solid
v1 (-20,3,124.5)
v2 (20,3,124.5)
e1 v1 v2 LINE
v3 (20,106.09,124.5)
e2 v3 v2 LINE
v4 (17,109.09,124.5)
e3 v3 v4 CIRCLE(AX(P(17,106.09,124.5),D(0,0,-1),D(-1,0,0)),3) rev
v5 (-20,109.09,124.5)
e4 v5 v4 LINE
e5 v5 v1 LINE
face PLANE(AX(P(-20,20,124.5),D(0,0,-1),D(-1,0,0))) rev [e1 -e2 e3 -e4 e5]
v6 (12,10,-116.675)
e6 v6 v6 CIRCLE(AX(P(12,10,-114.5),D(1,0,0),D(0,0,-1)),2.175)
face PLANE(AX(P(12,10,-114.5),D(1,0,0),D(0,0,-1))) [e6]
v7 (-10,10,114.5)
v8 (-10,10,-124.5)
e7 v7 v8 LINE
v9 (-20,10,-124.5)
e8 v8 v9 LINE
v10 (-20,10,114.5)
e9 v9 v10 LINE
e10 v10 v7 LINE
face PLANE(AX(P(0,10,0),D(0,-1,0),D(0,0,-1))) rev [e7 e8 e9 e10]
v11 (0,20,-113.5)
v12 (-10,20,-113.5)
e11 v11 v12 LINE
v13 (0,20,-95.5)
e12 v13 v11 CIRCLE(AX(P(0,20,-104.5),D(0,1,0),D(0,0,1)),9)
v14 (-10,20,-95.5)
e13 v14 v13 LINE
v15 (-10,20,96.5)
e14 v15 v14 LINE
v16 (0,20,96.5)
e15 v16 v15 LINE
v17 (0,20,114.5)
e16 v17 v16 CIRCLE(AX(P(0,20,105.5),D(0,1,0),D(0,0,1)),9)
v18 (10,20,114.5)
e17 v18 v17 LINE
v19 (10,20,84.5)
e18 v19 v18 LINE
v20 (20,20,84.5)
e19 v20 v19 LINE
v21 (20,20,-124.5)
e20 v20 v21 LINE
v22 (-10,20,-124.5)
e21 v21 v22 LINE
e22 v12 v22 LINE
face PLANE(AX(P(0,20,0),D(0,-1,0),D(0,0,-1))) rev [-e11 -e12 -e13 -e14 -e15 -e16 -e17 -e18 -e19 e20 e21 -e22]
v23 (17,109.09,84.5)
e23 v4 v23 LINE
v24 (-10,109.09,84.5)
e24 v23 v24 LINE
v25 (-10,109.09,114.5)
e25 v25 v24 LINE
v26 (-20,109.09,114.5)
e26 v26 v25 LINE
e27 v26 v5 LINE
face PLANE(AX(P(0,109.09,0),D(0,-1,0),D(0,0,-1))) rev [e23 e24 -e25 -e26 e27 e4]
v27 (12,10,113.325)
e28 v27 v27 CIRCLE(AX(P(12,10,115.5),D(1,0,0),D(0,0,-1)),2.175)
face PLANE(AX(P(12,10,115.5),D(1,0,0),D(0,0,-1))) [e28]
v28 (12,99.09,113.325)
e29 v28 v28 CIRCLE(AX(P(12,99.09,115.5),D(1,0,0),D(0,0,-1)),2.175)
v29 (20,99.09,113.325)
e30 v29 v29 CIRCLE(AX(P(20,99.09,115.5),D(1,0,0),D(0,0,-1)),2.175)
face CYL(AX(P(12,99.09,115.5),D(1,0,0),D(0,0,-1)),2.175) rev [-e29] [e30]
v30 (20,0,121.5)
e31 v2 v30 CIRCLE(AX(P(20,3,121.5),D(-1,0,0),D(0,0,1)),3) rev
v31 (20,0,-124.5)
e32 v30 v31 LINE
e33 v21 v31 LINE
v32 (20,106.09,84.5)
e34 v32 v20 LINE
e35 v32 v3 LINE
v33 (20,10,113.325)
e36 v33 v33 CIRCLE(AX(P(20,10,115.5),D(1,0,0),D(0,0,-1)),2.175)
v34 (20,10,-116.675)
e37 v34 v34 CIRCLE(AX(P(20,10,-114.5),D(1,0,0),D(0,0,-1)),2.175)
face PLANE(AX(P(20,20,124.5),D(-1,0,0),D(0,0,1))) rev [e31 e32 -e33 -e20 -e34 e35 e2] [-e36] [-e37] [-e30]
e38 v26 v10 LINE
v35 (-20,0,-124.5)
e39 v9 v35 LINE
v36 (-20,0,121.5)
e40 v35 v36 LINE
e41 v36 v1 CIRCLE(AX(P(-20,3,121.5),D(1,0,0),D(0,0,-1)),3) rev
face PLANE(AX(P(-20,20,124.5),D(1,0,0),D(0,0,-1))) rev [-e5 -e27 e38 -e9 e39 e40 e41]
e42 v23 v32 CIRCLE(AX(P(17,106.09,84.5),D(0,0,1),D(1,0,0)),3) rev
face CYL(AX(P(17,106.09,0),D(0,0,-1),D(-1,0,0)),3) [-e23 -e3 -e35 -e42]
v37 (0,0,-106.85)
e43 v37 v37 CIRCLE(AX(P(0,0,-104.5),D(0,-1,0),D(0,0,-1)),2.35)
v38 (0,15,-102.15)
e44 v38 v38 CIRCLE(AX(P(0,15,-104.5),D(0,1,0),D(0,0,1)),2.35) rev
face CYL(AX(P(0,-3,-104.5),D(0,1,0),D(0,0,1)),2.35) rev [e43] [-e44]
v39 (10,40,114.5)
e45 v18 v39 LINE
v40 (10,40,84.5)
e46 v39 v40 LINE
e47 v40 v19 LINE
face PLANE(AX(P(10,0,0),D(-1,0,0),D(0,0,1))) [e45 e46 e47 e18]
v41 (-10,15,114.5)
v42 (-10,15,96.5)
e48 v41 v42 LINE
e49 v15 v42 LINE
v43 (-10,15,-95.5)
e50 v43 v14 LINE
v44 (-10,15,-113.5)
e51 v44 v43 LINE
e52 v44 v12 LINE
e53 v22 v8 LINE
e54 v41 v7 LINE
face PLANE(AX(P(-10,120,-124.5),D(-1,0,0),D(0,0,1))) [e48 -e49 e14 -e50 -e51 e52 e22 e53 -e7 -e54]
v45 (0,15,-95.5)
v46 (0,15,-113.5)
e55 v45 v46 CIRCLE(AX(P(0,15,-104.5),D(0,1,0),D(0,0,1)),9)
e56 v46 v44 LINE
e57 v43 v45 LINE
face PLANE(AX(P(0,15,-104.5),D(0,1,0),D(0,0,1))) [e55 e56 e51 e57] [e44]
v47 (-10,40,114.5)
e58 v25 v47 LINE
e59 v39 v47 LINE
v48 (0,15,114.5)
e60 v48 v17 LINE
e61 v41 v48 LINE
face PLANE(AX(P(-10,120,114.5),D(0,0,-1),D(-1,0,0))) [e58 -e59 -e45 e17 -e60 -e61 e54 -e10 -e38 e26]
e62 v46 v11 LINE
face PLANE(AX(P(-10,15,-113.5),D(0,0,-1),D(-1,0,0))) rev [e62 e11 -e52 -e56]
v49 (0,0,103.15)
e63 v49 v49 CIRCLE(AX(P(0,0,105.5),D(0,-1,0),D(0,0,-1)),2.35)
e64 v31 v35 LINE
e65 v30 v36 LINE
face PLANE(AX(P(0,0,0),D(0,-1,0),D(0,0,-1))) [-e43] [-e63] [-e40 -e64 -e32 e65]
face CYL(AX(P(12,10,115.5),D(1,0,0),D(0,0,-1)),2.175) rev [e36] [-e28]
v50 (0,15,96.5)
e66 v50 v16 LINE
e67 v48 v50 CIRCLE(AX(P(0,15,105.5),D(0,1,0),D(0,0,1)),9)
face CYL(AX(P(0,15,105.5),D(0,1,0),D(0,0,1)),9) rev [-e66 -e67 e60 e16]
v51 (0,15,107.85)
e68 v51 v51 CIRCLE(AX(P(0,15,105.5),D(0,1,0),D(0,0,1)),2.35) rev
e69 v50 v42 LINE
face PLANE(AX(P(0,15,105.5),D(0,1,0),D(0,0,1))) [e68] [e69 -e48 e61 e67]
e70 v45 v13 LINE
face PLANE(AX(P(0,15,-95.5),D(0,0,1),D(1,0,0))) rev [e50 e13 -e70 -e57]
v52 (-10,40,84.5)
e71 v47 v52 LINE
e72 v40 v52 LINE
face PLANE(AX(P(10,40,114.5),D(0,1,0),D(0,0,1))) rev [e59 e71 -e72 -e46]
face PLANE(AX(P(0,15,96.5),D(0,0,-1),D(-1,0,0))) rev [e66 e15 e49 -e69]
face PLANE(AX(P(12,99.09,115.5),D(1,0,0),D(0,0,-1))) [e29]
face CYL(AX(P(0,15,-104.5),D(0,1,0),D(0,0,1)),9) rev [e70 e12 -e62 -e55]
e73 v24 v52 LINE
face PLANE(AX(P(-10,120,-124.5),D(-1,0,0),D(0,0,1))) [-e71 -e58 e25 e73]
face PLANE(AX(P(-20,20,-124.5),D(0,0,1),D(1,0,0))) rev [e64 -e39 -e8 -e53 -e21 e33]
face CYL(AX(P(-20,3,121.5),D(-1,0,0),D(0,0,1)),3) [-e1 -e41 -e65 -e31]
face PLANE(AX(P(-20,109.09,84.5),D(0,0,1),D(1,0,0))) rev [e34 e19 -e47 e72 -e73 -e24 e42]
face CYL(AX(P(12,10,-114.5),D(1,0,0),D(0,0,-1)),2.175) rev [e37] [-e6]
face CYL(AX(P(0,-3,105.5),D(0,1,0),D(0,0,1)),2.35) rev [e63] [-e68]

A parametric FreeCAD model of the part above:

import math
import FreeCAD as App
import Part
import Sketcher
Q = App.Units.Quantity


def edges_at(feature, points):
    """Names of the edges that pass closest to the given points."""
    edges = feature.Shape.Edges
    near = lambda p: min(range(len(edges)), key=lambda i: edges[i].distToShape(Part.Vertex(*p))[0])
    return sorted({f"Edge{near(p) + 1}" for p in points})


def add_polygon(sketch, points):
    """Adds a closed chain of lines whose ends are joined by coincident constraints."""
    first, n = sketch.GeometryCount, len(points)
    for a, b in zip(points, points[1:] + points[:1]):
        sketch.addGeometry(Part.LineSegment(App.Vector(*a, 0), App.Vector(*b, 0)), False)
    for i in range(n):
        sketch.addConstraint(Sketcher.Constraint("Coincident", first + i, 2, first + (i + 1) % n, 1))

doc = App.newDocument("Part")
body = doc.addObject("PartDesign::Body", "Body")

# Sketch on XZ plane
sketch1 = doc.addObject("Sketcher::SketchObject", "Sketch")
body.addObject(sketch1)
sketch1.AttachmentSupport = (doc.XZ_Plane, [""])
sketch1.MapMode = "FlatFace"
add_polygon(sketch1, [(-20, -124), (-20, 124), (20, 124), (20, -124)])  # lines 0-3
sketch1.addConstraint([
    Sketcher.Constraint("Vertical", 0),
    Sketcher.Constraint("Horizontal", 1),
    Sketcher.Constraint("Vertical", 2),
    Sketcher.Constraint("Horizontal", 3),
    Sketcher.Constraint("Symmetric", 0, 2, 2, 2, -1, 1),
    Sketcher.Constraint("DistanceX", 1, 1, 1, 2, Q("40 mm")),
    Sketcher.Constraint("DistanceY", 0, 1, 0, 2, Q("249 mm")),
])
pad1 = doc.addObject("PartDesign::Pad", "Pad")
body.addObject(pad1)
pad1.Profile = sketch1
pad1.Length = 20
pad1.Reversed = True

# Sketch on XZ plane
sketch2 = doc.addObject("Sketcher::SketchObject", "Sketch001")
body.addObject(sketch2)
sketch2.AttachmentSupport = (doc.XZ_Plane, [""])
sketch2.MapMode = "FlatFace"
sketch2.AttachmentOffset = App.Placement(App.Vector(0, 0, -20), App.Rotation())
add_polygon(sketch2, [(-20, 84), (-20, 124), (20, 124), (20, 84)])  # lines 0-3
sketch2.addConstraint([
    Sketcher.Constraint("Vertical", 0),
    Sketcher.Constraint("Horizontal", 1),
    Sketcher.Constraint("Vertical", 2),
    Sketcher.Constraint("Horizontal", 3),
    Sketcher.Constraint("Equal", 3, 0),
    Sketcher.Constraint("DistanceX", 1, 1, 1, 2, Q("40 mm")),
    Sketcher.Constraint("DistanceX", 0, 2, -1, 1, Q("20 mm")),
    Sketcher.Constraint("DistanceY", -1, 1, 0, 2, Q("124.5 mm")),
])
pad2 = doc.addObject("PartDesign::Pad", "Pad001")
body.addObject(pad2)
pad2.Profile = sketch2
pad2.Length = 89.09
pad2.Reversed = True

# Sketch on XZ plane
sketch3 = doc.addObject("Sketcher::SketchObject", "Sketch002")
body.addObject(sketch3)
sketch3.AttachmentSupport = (doc.XZ_Plane, [""])
sketch3.MapMode = "FlatFace"
sketch3.AttachmentOffset = App.Placement(App.Vector(0, 0, -20), App.Rotation())
add_polygon(sketch3, [(-20, -124), (-20, 114), (-10, 114), (-10, -124)])  # lines 0-3
sketch3.addConstraint([
    Sketcher.Constraint("Vertical", 0),
    Sketcher.Constraint("Horizontal", 1),
    Sketcher.Constraint("Vertical", 2),
    Sketcher.Constraint("Horizontal", 3),
    Sketcher.Constraint("DistanceX", 1, 1, 1, 2, Q("10 mm")),
    Sketcher.Constraint("DistanceY", 0, 1, 0, 2, Q("239 mm")),
    Sketcher.Constraint("DistanceX", 0, 2, -1, 1, Q("20 mm")),
    Sketcher.Constraint("DistanceY", -1, 1, 0, 2, Q("114.5 mm")),
])
pocket1 = doc.addObject("PartDesign::Pocket", "Pocket")
body.addObject(pocket1)
pocket1.Profile = sketch3
pocket1.Type = "TwoLengths"
pocket1.Length = 100
pocket1.Length2 = 10

# Sketch on YZ plane
sketch4 = doc.addObject("Sketcher::SketchObject", "Sketch003")
body.addObject(sketch4)
sketch4.AttachmentSupport = (doc.YZ_Plane, [""])
sketch4.MapMode = "FlatFace"
sketch4.AttachmentOffset = App.Placement(App.Vector(0, 0, -10), App.Rotation())
add_polygon(sketch4, [(40, 84), (20, 84), (20, 114), (40, 114)])  # lines 0-3
sketch4.addConstraint([
    Sketcher.Constraint("Horizontal", 0),
    Sketcher.Constraint("Vertical", 1),
    Sketcher.Constraint("Horizontal", 2),
    Sketcher.Constraint("Vertical", 3),
    Sketcher.Constraint("DistanceX", 0, 2, 0, 1, Q("20 mm")),
    Sketcher.Constraint("DistanceY", 1, 1, 1, 2, Q("30 mm")),
    Sketcher.Constraint("DistanceX", -1, 1, 0, 2, Q("20 mm")),
    Sketcher.Constraint("DistanceY", -1, 1, 0, 2, Q("84.5 mm")),
])
pocket2 = doc.addObject("PartDesign::Pocket", "Pocket001")
body.addObject(pocket2)
pocket2.Profile = sketch4
pocket2.Length = 20
pocket2.Reversed = True

# Sketch on XZ plane
sketch5 = doc.addObject("Sketcher::SketchObject", "Sketch004")
body.addObject(sketch5)
sketch5.AttachmentSupport = (doc.XZ_Plane, [""])
sketch5.MapMode = "FlatFace"
sketch5.AttachmentOffset = App.Placement(App.Vector(0, 0, -20), App.Rotation())
sketch5.addGeometry([
    Part.Circle(App.Vector(0, -104.5, 0), App.Vector(0, 0, 1), 2.4),
    Part.Circle(App.Vector(0, 105.5, 0), App.Vector(0, 0, 1), 2.4),
], False)
sketch5.addConstraint([
    Sketcher.Constraint("Equal", 0, 1),
    Sketcher.Constraint("PointOnObject", 0, 3, -2),
    Sketcher.Constraint("PointOnObject", 1, 3, -2),
    Sketcher.Constraint("Diameter", 0, Q("4.7 mm")),
    Sketcher.Constraint("DistanceY", 0, 3, 1, 3, Q("210 mm")),
    Sketcher.Constraint("DistanceY", 0, 3, -1, 1, Q("104.5 mm")),
])
pocket3 = doc.addObject("PartDesign::Pocket", "Pocket002")
body.addObject(pocket3)
pocket3.Profile = sketch5
pocket3.Length = 23
pocket3.Reversed = True

# Sketch on XZ plane
sketch6 = doc.addObject("Sketcher::SketchObject", "Sketch005")
body.addObject(sketch6)
sketch6.AttachmentSupport = (doc.XZ_Plane, [""])
sketch6.MapMode = "FlatFace"
sketch6.AttachmentOffset = App.Placement(App.Vector(0, 0, -20), App.Rotation())
sketch6.addGeometry([
    Part.LineSegment(App.Vector(-10, -96, 0), App.Vector(0, -96, 0)),  # 0
    Part.ArcOfCircle(Part.Circle(App.Vector(0, -104, 0), App.Vector(0, 0, 1), 9), math.radians(-90), math.radians(90)),  # 1
    Part.LineSegment(App.Vector(0, -114, 0), App.Vector(-10, -114, 0)),  # 2
    Part.LineSegment(App.Vector(-10, -114, 0), App.Vector(-10, -96, 0)),  # 3
    Part.LineSegment(App.Vector(0, 96, 0), App.Vector(-20, 96, 0)),  # 4
    Part.LineSegment(App.Vector(-20, 96, 0), App.Vector(-20, 114, 0)),  # 5
    Part.LineSegment(App.Vector(-20, 114, 0), App.Vector(0, 114, 0)),  # 6
    Part.ArcOfCircle(Part.Circle(App.Vector(0, 106, 0), App.Vector(0, 0, 1), 9), math.radians(-90), math.radians(90)),  # 7
], False)
sketch6.addConstraint([
    Sketcher.Constraint("Tangent", 0, 2, 1, 2),
    Sketcher.Constraint("Tangent", 1, 1, 2, 1),
    Sketcher.Constraint("Coincident", 2, 2, 3, 1),
    Sketcher.Constraint("Coincident", 3, 2, 0, 1),
    Sketcher.Constraint("Coincident", 4, 2, 5, 1),
    Sketcher.Constraint("Coincident", 5, 2, 6, 1),
    Sketcher.Constraint("Tangent", 6, 2, 7, 2),
    Sketcher.Constraint("Tangent", 7, 1, 4, 1),
    Sketcher.Constraint("Horizontal", 0),
    Sketcher.Constraint("Horizontal", 2),
    Sketcher.Constraint("Vertical", 3),
    Sketcher.Constraint("Horizontal", 4),
    Sketcher.Constraint("Vertical", 5),
    Sketcher.Constraint("Horizontal", 6),
    Sketcher.Constraint("Equal", 1, 7),
    Sketcher.Constraint("PointOnObject", 1, 3, -2),
    Sketcher.Constraint("PointOnObject", 7, 3, -2),
    Sketcher.Constraint("Radius", 1, Q("9 mm")),
    Sketcher.Constraint("DistanceX", 0, 1, 0, 2, Q("10 mm")),
    Sketcher.Constraint("DistanceX", 4, 2, 4, 1, Q("20 mm")),
    Sketcher.Constraint("DistanceY", 1, 3, 7, 3, Q("210 mm")),
    Sketcher.Constraint("DistanceY", 1, 3, -1, 1, Q("104.5 mm")),
])
pocket4 = doc.addObject("PartDesign::Pocket", "Pocket003")
body.addObject(pocket4)
pocket4.Profile = sketch6
pocket4.Length = 5
pocket4.Reversed = True

# Sketch on YZ plane
sketch7 = doc.addObject("Sketcher::SketchObject", "Sketch006")
body.addObject(sketch7)
sketch7.AttachmentSupport = (doc.YZ_Plane, [""])
sketch7.MapMode = "FlatFace"
sketch7.AttachmentOffset = App.Placement(App.Vector(0, 0, 20), App.Rotation())
sketch7.addGeometry([
    Part.Circle(App.Vector(10, -114.5, 0), App.Vector(0, 0, 1), 2.2),
    Part.Circle(App.Vector(10, 115.5, 0), App.Vector(0, 0, 1), 2.2),
    Part.Circle(App.Vector(99.1, 115.5, 0), App.Vector(0, 0, 1), 2.2),
], False)
sketch7.addConstraint([
    Sketcher.Constraint("Equal", 0, 1),
    Sketcher.Constraint("Equal", 1, 2),
    Sketcher.Constraint("Horizontal", 1, 3, 2, 3),
    Sketcher.Constraint("Vertical", 0, 3, 1, 3),
    Sketcher.Constraint("Diameter", 0, Q("4.35 mm")),
    Sketcher.Constraint("DistanceX", -1, 1, 0, 3, Q("10 mm")),
    Sketcher.Constraint("DistanceY", 0, 3, 1, 3, Q("230 mm")),
    Sketcher.Constraint("DistanceY", 0, 3, -1, 1, Q("114.5 mm")),
    Sketcher.Constraint("DistanceX", -1, 1, 2, 3, Q("99.09 mm")),
])
pocket5 = doc.addObject("PartDesign::Pocket", "Pocket004")
body.addObject(pocket5)
pocket5.Profile = sketch7
pocket5.Length = 8
doc.recompute()

fillet = doc.addObject("PartDesign::Fillet", "Fillet")
body.addObject(fillet)
fillet.Base = (pocket5, edges_at(pocket5, [(20, 109.09, 104.5), (0, 0, 124.5)]))
fillet.Radius = 3

doc.recompute()
